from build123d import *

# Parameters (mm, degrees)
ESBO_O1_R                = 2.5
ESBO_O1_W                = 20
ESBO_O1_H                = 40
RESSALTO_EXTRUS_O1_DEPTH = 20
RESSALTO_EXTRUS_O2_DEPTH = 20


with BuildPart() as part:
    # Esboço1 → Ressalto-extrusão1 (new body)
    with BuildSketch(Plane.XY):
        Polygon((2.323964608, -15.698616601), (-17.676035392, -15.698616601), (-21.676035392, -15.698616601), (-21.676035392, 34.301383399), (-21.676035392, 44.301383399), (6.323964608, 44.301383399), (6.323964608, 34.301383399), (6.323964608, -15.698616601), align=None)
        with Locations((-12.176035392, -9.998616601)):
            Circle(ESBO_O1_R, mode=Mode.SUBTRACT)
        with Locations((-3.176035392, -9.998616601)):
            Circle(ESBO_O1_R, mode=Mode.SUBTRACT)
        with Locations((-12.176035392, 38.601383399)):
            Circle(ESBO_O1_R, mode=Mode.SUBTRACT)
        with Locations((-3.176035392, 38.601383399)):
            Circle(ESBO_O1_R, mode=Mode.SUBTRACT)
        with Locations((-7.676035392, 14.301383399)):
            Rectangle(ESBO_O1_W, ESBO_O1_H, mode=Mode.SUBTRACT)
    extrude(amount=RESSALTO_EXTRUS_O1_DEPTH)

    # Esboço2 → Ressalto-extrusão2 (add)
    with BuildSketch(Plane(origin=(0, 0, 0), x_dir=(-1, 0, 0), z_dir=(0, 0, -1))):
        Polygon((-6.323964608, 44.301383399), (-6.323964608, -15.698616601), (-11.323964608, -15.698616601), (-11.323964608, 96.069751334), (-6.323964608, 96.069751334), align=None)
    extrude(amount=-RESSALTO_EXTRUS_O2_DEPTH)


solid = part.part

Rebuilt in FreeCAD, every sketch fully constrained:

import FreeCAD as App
import Part
import Sketcher
Q = App.Units.Quantity

doc = App.newDocument("Part")
body = doc.addObject("PartDesign::Body", "Body")

# Sketch on XY plane
sketch1 = body.newObject("Sketcher::SketchObject", "Sketch")
sketch1.AttachmentSupport = (doc.getObject("XY_Plane"), [""])
sketch1.MapMode = "FlatFace"
sketch1.addGeometry([
    Part.LineSegment(App.Vector(-21.7, -15.7, 0), App.Vector(6.3, -15.7, 0)),  # 0
    Part.LineSegment(App.Vector(6.3, -15.7, 0), App.Vector(6.3, 44.3, 0)),  # 1
    Part.LineSegment(App.Vector(6.3, 44.3, 0), App.Vector(-21.7, 44.3, 0)),  # 2
    Part.LineSegment(App.Vector(-21.7, 44.3, 0), App.Vector(-21.7, -15.7, 0)),  # 3
    Part.Circle(App.Vector(-3.2, -10, 0), App.Vector(0, 0, 1), 2.5),  # 4
    Part.Circle(App.Vector(-12.2, -10, 0), App.Vector(0, 0, 1), 2.5),  # 5
    Part.Circle(App.Vector(-3.2, 38.6, 0), App.Vector(0, 0, 1), 2.5),  # 6
    Part.LineSegment(App.Vector(-17.7, -5.7, 0), App.Vector(-17.7, 34.3, 0)),  # 7
    Part.LineSegment(App.Vector(-17.7, 34.3, 0), App.Vector(2.3, 34.3, 0)),  # 8
    Part.LineSegment(App.Vector(2.3, 34.3, 0), App.Vector(2.3, -5.7, 0)),  # 9
    Part.LineSegment(App.Vector(2.3, -5.7, 0), App.Vector(-17.7, -5.7, 0)),  # 10
    Part.Circle(App.Vector(-12.2, 38.6, 0), App.Vector(0, 0, 1), 2.5),  # 11
], False)
sketch1.addConstraint([
    Sketcher.Constraint("Coincident", 0, 2, 1, 1),
    Sketcher.Constraint("Coincident", 1, 2, 2, 1),
    Sketcher.Constraint("Coincident", 2, 2, 3, 1),
    Sketcher.Constraint("Coincident", 3, 2, 0, 1),
    Sketcher.Constraint("Coincident", 7, 2, 8, 1),
    Sketcher.Constraint("Coincident", 8, 2, 9, 1),
    Sketcher.Constraint("Coincident", 9, 2, 10, 1),
    Sketcher.Constraint("Coincident", 10, 2, 7, 1),
    Sketcher.Constraint("Horizontal", 0),
    Sketcher.Constraint("Vertical", 1),
    Sketcher.Constraint("Horizontal", 2),
    Sketcher.Constraint("Vertical", 3),
    Sketcher.Constraint("Vertical", 7),
    Sketcher.Constraint("Horizontal", 8),
    Sketcher.Constraint("Vertical", 9),
    Sketcher.Constraint("Horizontal", 10),
    Sketcher.Constraint("Equal", 4, 5),
    Sketcher.Constraint("Equal", 5, 6),
    Sketcher.Constraint("Equal", 6, 11),
    Sketcher.Constraint("Horizontal", 4, 3, 5, 3),
    Sketcher.Constraint("Horizontal", 6, 3, 11, 3),
    Sketcher.Constraint("Vertical", 4, 3, 6, 3),
    Sketcher.Constraint("Vertical", 5, 3, 11, 3),
    Sketcher.Constraint("Diameter", 4, Q("5 mm")),
    Sketcher.Constraint("DistanceX", 0, 1, 0, 2, Q("28 mm")),
    Sketcher.Constraint("DistanceX", 8, 1, 8, 2, Q("20 mm")),
    Sketcher.Constraint("DistanceY", 1, 1, 1, 2, Q("60 mm")),
    Sketcher.Constraint("DistanceY", 7, 1, 7, 2, Q("40 mm")),
    Sketcher.Constraint("DistanceX", 5, 3, 4, 3, Q("9 mm")),
    Sketcher.Constraint("DistanceX", 2, 2, 7, 2, Q("4 mm")),
    Sketcher.Constraint("DistanceY", 7, 2, 2, 2, Q("10 mm")),
    Sketcher.Constraint("DistanceY", 4, 3, 6, 3, Q("48.6 mm")),
    Sketcher.Constraint("DistanceX", 4, 3, 0, 2, Q("9.5 mm")),
    Sketcher.Constraint("DistanceY", 0, 2, 4, 3, Q("5.7 mm")),
    Sketcher.Constraint("DistanceX", 4, 3, -1, 1, Q("3.176035 mm")),
    Sketcher.Constraint("DistanceY", 4, 3, -1, 1, Q("9.998617 mm")),
])
pad1 = body.newObject("PartDesign::Pad", "Pad")
pad1.Profile = sketch1
pad1.Length = 20

# Sketch on XY plane
sketch2 = body.newObject("Sketcher::SketchObject", "Sketch001")
sketch2.AttachmentSupport = (doc.getObject("XY_Plane"), [""])
sketch2.MapMode = "FlatFace"
sketch2.addGeometry([
    Part.LineSegment(App.Vector(6, -16, 0), App.Vector(6, 96, 0)),
    Part.LineSegment(App.Vector(6, 96, 0), App.Vector(11, 96, 0)),
    Part.LineSegment(App.Vector(11, 96, 0), App.Vector(11, -16, 0)),
    Part.LineSegment(App.Vector(11, -16, 0), App.Vector(6, -16, 0)),
], False)
sketch2.addConstraint([
    Sketcher.Constraint("Coincident", 0, 2, 1, 1),
    Sketcher.Constraint("Coincident", 1, 2, 2, 1),
    Sketcher.Constraint("Coincident", 2, 2, 3, 1),
    Sketcher.Constraint("Coincident", 3, 2, 0, 1),
    Sketcher.Constraint("Vertical", 0),
    Sketcher.Constraint("Horizontal", 1),
    Sketcher.Constraint("Vertical", 2),
    Sketcher.Constraint("Horizontal", 3),
    Sketcher.Constraint("DistanceX", 1, 1, 1, 2, Q("5 mm")),
    Sketcher.Constraint("DistanceY", 0, 1, 0, 2, Q("111.768368 mm")),
    Sketcher.Constraint("DistanceY", -1, 1, 0, 2, Q("96.069751 mm")),
    Sketcher.Constraint("DistanceX", -1, 1, 0, 2, Q("6.323965 mm")),
])
pad2 = body.newObject("PartDesign::Pad", "Pad001")
pad2.Profile = sketch2
pad2.Length = 20

doc.recompute()
